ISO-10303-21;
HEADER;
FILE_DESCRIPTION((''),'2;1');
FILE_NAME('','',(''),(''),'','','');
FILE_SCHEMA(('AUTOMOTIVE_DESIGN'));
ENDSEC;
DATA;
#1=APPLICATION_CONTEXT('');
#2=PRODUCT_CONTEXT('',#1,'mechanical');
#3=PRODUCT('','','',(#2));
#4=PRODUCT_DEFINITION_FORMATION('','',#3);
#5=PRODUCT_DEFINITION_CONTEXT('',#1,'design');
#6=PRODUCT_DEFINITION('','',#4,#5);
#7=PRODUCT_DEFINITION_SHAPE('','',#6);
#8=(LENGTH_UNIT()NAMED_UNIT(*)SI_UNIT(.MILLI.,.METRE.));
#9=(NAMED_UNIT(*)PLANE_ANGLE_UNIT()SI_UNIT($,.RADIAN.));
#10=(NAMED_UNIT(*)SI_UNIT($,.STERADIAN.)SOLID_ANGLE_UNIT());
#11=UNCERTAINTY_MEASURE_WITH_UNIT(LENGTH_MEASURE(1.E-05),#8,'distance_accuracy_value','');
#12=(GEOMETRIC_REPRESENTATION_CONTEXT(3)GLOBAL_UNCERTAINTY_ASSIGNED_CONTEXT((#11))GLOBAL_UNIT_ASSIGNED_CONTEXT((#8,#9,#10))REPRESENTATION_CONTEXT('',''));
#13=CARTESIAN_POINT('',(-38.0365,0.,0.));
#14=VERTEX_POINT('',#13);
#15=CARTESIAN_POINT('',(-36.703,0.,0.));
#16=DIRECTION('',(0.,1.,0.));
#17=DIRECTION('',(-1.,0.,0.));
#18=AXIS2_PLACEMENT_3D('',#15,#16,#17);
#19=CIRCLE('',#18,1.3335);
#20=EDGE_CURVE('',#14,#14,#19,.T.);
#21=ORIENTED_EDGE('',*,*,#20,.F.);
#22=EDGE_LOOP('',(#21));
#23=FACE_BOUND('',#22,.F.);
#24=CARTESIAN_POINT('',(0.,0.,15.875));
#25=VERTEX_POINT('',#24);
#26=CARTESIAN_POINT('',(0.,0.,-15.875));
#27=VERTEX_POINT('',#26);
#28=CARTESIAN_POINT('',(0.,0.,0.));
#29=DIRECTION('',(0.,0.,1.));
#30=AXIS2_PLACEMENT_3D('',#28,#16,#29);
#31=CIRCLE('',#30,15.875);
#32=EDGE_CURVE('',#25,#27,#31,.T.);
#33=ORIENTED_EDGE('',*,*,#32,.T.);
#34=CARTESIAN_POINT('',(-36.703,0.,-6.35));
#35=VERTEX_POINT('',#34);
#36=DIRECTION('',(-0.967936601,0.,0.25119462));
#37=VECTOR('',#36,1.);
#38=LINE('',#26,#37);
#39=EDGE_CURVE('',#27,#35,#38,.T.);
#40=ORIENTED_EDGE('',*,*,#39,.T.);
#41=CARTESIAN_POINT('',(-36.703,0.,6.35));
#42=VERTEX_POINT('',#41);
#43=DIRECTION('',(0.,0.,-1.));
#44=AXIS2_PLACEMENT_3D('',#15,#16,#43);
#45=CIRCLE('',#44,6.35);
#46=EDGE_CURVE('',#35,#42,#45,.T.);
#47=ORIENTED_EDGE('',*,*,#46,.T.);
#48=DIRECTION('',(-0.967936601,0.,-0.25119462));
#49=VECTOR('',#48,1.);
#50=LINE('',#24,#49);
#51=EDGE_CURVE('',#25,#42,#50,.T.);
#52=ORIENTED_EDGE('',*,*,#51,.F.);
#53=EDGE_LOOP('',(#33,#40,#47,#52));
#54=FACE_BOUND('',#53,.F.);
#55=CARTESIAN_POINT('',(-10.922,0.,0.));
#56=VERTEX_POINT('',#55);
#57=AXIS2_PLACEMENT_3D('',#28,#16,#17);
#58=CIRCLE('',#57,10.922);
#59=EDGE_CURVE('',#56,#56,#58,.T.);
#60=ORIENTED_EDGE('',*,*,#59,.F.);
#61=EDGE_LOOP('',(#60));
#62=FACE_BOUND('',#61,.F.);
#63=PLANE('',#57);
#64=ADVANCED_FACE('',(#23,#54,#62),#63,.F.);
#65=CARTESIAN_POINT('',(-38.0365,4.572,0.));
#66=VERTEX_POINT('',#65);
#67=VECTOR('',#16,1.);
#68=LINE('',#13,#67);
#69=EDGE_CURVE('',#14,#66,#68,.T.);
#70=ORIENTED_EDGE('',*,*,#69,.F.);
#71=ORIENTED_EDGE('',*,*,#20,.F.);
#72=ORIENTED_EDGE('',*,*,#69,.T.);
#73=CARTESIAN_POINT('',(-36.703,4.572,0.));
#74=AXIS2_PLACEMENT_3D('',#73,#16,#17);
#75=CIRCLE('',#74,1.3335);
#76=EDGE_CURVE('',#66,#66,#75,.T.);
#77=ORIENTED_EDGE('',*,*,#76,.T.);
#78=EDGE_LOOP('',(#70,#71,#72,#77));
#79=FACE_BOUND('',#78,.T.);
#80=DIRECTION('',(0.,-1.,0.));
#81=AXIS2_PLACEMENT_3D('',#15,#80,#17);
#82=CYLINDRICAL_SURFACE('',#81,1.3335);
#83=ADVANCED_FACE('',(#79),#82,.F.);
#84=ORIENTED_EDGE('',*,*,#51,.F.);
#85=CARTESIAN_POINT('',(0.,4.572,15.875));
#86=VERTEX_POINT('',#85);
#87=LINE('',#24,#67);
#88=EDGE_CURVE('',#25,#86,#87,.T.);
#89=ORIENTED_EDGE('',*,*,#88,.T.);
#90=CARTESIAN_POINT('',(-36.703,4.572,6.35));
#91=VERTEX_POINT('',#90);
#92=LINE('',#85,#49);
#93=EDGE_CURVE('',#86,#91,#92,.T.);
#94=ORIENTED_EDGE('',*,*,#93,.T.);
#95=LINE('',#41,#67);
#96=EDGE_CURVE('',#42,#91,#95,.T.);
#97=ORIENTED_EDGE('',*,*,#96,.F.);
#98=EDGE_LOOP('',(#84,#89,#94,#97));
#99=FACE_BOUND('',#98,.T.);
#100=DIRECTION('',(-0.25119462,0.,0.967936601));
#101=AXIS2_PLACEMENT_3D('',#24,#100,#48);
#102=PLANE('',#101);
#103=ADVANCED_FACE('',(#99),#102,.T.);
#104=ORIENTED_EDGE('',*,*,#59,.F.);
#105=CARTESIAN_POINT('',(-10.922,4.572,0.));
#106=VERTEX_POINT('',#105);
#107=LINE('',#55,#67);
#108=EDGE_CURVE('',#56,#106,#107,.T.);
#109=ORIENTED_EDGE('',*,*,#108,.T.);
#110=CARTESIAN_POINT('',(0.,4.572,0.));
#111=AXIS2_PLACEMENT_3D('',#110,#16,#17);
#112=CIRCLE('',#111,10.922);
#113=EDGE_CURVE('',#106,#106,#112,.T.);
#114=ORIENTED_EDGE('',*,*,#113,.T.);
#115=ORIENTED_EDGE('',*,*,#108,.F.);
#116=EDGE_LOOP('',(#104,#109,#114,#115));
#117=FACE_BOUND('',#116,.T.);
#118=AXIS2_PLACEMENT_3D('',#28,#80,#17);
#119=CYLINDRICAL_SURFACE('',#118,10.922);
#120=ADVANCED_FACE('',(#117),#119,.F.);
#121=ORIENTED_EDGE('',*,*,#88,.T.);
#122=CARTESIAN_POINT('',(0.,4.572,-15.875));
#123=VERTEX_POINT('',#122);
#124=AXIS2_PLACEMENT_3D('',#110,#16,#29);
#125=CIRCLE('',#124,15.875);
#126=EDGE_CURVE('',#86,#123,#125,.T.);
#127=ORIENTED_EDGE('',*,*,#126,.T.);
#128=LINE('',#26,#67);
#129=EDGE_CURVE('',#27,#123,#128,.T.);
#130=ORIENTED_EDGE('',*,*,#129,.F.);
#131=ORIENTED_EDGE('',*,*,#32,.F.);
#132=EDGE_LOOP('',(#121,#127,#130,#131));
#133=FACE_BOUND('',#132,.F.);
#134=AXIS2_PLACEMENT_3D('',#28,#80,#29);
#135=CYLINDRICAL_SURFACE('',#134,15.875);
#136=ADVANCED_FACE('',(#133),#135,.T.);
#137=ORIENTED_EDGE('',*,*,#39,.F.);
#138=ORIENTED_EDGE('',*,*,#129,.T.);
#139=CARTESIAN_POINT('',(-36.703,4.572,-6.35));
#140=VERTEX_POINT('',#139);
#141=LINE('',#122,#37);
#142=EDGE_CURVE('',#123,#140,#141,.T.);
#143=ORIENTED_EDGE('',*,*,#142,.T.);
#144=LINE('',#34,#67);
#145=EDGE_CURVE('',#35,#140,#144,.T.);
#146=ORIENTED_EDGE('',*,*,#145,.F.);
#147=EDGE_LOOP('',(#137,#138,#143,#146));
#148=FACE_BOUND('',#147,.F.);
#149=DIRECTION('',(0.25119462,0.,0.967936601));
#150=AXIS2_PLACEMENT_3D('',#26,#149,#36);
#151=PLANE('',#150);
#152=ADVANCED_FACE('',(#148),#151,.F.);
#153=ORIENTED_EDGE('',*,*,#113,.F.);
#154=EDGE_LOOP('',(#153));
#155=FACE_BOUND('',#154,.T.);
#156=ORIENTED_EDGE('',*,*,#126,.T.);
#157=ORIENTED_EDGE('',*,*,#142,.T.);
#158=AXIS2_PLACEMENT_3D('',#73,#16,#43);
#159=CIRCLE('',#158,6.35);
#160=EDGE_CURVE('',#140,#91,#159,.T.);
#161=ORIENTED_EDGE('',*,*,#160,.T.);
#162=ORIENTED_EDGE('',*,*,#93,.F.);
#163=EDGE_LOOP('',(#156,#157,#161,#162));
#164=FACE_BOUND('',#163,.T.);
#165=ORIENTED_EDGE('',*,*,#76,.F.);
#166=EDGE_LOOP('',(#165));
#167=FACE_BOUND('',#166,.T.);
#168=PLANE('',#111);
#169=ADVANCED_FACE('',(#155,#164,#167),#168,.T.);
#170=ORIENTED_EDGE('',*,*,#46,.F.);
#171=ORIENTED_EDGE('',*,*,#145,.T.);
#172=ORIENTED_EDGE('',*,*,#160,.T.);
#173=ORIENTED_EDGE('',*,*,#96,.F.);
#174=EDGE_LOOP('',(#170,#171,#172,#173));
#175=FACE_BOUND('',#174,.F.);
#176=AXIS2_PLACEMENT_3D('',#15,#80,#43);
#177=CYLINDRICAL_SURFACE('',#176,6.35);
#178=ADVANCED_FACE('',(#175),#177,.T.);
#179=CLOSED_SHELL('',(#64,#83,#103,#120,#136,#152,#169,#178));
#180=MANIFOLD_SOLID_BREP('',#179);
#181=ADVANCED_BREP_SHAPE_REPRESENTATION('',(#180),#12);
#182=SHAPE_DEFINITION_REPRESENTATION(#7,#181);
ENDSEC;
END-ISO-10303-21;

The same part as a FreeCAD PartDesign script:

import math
import FreeCAD as App
import Part
import Sketcher

V = App.Vector
Q = App.Units.Quantity

doc = App.newDocument("Part")
body = doc.addObject("PartDesign::Body", "Body")

sketch1 = doc.addObject("Sketcher::SketchObject", "Sketch")
body.addObject(sketch1)
sketch1.AttachmentSupport = (doc.XZ_Plane, [""])
sketch1.MapMode = "FlatFace"
sketch1.addGeometry([
    Part.LineSegment(V(-36.7, 6.3, 0), V(0, 15.9, 0)),
    Part.ArcOfCircle(Part.Circle(V(0, 0, 0), V(0, 0, 1), 15.9), math.radians(-90), math.radians(90)),
    Part.LineSegment(V(0, -15.9, 0), V(-36.7, -6.3, 0)),
    Part.ArcOfCircle(Part.Circle(V(-36.7, 0, 0), V(0, 0, 1), 6.3), math.radians(90), math.radians(270)),
    Part.Circle(V(0, 0, 0), V(0, 0, 1), 10.9),
    Part.Circle(V(-36.7, 0, 0), V(0, 0, 1), 1.3),
], False)
sketch1.addConstraint([
    Sketcher.Constraint("Coincident", 0, 2, 1, 2),
    Sketcher.Constraint("Coincident", 1, 1, 2, 1),
    Sketcher.Constraint("Coincident", 2, 2, 3, 2),
    Sketcher.Constraint("Coincident", 3, 1, 0, 1),
    Sketcher.Constraint("Coincident", 1, 3, -1, 1),
    Sketcher.Constraint("Coincident", 4, 3, -1, 1),
    Sketcher.Constraint("Coincident", 5, 3, 3, 3),
    Sketcher.Constraint("Symmetric", 2, 2, 3, 1, -1),
    Sketcher.Constraint("PointOnObject", 0, 2, -2),
    Sketcher.Constraint("PointOnObject", 1, 1, -2),
    Sketcher.Constraint("Vertical", 5, 3, 2, 2),
    Sketcher.Constraint("Diameter", 4, Q("0.86 in")),
    Sketcher.Constraint("Radius", 3, Q("0.25 in")),
    Sketcher.Constraint("Diameter", 5, Q("0.105 in")),
    Sketcher.Constraint("Radius", 1, Q("0.625 in")),
    Sketcher.Constraint("DistanceX", 3, 3, -1, 1, Q("1.445 in")),
])
pad1 = doc.addObject("PartDesign::Pad", "Pad")
body.addObject(pad1)
pad1.Profile = sketch1
pad1.Length = Q("0.18 in")
pad1.Reversed = True

doc.recompute()
